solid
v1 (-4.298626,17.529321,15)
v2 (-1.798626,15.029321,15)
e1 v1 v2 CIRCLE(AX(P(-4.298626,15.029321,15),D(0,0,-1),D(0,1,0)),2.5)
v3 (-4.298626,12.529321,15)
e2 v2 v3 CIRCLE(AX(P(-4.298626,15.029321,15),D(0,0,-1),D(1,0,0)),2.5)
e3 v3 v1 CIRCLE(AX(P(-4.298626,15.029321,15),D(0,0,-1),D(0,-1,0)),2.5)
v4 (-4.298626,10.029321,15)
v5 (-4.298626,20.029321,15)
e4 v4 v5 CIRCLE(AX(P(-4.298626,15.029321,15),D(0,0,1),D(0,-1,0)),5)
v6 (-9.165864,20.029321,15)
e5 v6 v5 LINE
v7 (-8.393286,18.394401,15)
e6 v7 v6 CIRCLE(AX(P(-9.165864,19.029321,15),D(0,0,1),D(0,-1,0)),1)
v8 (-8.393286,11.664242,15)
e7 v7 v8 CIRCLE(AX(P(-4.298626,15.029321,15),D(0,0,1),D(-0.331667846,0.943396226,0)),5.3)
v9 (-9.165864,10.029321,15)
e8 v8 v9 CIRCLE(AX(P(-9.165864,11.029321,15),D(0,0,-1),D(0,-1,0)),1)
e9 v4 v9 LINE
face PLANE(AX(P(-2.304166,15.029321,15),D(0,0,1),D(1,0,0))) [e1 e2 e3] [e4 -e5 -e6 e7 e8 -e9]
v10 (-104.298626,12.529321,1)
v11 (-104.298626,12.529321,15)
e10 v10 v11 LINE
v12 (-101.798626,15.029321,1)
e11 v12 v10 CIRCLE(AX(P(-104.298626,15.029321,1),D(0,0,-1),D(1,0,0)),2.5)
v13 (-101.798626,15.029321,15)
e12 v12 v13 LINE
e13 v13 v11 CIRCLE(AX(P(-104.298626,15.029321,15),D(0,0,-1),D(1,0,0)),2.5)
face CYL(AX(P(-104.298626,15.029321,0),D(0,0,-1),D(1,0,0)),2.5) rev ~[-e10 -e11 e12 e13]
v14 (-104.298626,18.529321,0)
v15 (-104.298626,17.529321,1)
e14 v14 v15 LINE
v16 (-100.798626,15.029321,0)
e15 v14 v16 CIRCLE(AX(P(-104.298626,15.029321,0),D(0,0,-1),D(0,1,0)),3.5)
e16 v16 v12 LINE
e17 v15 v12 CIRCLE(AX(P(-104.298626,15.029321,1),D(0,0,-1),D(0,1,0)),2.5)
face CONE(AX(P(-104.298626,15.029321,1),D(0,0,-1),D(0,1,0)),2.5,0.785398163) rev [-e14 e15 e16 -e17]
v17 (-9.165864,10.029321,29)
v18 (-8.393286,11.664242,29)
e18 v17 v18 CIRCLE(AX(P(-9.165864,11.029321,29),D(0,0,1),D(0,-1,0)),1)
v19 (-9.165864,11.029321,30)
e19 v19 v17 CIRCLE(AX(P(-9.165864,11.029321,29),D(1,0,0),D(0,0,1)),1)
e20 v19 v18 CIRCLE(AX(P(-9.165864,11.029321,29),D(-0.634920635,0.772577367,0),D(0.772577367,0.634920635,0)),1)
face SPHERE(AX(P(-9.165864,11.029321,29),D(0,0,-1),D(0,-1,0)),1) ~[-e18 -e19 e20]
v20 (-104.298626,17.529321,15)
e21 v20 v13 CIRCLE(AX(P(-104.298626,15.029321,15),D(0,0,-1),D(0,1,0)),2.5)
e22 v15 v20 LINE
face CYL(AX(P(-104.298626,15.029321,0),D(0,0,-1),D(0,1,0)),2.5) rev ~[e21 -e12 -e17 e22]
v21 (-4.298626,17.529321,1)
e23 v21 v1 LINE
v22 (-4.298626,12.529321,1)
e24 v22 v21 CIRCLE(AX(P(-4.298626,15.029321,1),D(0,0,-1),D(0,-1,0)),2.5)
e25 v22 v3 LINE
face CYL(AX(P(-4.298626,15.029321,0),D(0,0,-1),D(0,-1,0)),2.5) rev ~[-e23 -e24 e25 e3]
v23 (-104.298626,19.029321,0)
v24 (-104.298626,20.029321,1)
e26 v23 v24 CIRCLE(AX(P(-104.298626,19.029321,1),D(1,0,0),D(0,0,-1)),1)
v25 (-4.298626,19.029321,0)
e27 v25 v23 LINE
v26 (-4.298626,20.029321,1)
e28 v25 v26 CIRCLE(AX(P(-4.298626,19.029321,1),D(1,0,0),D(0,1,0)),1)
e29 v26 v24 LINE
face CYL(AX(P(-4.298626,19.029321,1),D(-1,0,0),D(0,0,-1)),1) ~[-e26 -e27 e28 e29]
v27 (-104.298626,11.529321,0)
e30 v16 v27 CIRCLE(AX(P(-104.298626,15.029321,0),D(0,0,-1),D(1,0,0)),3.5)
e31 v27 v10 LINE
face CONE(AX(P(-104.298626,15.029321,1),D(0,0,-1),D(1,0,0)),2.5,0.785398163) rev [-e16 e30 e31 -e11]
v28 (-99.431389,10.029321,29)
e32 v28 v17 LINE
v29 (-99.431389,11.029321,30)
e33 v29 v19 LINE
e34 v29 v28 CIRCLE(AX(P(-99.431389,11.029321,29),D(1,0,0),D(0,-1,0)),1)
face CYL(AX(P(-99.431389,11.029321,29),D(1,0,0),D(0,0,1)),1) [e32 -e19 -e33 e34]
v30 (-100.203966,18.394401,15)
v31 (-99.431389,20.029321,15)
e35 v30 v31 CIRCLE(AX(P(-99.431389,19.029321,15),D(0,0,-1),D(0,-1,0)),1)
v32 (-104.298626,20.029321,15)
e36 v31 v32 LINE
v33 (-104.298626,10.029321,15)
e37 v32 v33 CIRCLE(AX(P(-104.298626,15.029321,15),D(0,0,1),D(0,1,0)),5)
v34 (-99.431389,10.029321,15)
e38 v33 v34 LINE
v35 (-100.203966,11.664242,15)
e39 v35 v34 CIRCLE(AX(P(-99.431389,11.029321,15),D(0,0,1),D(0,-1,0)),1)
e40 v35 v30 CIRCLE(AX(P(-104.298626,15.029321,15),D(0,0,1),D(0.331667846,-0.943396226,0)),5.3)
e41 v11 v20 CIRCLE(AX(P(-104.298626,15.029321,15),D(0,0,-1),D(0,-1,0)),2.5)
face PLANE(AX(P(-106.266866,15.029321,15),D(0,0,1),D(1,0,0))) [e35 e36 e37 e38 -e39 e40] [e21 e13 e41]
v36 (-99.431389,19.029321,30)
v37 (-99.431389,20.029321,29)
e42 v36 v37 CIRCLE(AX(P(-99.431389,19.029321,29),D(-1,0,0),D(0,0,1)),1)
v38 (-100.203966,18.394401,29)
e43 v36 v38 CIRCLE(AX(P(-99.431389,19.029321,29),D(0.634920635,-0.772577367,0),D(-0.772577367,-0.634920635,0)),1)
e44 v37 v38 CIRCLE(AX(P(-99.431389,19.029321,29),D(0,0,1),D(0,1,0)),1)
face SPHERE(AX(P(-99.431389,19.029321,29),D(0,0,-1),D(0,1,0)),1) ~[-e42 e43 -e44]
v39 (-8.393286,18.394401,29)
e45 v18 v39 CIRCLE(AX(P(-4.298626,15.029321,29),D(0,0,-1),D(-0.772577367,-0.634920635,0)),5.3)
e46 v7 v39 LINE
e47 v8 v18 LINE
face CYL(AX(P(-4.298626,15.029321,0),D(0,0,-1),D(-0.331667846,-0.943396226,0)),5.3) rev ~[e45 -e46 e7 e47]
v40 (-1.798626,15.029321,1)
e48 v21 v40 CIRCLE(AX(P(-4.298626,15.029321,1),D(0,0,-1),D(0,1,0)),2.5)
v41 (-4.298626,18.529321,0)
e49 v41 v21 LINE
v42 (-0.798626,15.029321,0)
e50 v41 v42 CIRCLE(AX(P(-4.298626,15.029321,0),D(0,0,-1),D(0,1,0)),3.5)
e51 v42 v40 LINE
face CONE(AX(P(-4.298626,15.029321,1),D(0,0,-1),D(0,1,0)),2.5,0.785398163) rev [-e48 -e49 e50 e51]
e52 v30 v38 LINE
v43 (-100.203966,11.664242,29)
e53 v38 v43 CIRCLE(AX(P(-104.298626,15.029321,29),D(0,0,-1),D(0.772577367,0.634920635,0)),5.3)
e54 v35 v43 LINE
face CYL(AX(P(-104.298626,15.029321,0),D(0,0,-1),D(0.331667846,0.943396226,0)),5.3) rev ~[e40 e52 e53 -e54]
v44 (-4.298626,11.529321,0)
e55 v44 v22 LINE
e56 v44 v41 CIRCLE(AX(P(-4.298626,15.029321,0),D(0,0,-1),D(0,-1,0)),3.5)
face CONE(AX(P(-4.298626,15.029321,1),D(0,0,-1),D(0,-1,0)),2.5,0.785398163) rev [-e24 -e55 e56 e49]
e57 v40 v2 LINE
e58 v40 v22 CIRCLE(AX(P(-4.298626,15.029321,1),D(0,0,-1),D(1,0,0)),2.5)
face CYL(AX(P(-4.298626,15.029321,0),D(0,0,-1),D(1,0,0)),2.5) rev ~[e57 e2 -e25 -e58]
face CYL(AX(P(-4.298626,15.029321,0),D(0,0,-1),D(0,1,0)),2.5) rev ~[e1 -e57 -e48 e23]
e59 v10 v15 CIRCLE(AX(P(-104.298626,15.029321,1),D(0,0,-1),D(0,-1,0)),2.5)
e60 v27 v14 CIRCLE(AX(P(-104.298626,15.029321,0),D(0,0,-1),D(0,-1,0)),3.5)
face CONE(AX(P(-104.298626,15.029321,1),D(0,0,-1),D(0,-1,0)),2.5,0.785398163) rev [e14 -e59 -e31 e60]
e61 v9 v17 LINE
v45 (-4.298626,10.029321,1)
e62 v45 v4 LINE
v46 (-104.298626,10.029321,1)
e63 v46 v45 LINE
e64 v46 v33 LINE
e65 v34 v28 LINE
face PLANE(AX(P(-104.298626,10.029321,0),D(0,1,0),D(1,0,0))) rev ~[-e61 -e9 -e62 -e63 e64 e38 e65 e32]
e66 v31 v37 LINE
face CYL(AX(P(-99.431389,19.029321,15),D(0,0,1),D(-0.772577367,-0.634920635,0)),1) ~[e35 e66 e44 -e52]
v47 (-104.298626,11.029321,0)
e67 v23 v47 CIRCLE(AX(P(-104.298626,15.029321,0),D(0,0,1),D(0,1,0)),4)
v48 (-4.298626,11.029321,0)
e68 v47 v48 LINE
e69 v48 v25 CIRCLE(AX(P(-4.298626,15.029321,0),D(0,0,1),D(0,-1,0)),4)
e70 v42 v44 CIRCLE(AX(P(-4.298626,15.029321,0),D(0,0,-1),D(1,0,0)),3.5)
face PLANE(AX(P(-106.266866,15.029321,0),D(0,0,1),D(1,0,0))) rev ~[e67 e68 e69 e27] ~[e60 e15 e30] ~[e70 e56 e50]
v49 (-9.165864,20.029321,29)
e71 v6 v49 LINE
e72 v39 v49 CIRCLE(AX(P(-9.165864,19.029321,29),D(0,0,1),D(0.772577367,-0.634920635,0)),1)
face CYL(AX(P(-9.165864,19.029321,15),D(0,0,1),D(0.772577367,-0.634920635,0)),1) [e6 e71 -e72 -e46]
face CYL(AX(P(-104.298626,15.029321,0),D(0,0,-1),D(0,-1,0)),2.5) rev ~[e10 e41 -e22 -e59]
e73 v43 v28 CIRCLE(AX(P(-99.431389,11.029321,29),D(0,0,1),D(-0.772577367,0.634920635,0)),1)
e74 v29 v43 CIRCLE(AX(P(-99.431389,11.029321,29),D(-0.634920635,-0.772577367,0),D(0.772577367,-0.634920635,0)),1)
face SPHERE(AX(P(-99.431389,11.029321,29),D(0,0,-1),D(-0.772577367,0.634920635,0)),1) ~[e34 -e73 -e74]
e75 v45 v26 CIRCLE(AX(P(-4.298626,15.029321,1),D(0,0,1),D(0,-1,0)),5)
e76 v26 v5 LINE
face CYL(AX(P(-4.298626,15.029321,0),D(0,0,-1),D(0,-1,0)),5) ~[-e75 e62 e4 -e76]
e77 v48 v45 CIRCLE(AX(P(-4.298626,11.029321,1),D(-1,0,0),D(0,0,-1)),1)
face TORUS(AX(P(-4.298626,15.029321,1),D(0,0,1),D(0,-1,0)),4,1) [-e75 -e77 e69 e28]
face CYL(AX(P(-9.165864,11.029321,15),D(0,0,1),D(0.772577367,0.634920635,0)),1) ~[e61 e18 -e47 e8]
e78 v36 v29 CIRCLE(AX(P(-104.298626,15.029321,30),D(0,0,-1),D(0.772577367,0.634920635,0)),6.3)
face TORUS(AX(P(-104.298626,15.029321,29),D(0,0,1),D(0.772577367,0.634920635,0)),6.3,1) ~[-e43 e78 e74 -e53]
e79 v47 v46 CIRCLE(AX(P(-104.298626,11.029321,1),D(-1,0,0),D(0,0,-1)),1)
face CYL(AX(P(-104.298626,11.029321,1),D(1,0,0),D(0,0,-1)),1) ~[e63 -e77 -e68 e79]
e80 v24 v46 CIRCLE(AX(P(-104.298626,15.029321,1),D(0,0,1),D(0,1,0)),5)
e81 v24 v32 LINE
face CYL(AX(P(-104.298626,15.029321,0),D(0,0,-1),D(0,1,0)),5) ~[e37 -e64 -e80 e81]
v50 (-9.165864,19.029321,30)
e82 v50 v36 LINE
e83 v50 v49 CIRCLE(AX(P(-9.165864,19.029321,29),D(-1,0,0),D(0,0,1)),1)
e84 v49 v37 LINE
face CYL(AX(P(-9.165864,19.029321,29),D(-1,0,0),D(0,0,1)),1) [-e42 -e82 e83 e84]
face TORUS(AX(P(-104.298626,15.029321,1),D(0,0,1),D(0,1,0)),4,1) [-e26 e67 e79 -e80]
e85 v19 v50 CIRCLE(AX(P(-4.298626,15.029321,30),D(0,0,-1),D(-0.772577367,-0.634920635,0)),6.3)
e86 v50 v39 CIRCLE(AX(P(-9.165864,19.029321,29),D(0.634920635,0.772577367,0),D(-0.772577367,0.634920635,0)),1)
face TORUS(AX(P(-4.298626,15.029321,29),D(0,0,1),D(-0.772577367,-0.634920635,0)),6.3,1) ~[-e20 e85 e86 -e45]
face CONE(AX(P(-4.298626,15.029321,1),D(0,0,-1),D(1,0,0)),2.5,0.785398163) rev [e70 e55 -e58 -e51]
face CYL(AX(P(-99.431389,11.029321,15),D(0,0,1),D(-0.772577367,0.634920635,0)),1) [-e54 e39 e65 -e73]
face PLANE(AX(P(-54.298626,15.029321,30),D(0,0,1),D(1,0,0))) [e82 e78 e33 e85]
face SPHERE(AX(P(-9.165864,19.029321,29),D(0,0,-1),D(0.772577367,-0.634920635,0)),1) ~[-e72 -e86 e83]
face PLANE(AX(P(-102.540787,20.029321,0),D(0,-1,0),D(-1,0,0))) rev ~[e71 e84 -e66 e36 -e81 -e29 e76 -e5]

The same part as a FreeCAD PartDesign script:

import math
import FreeCAD as App
import Part
import Sketcher

V = App.Vector


def edges_at(feature, points):
    """Names of the edges that pass closest to the given points."""
    edges = feature.Shape.Edges
    near = lambda p: min(range(len(edges)), key=lambda i: edges[i].distToShape(Part.Vertex(*p))[0])
    return sorted({f"Edge{near(p) + 1}" for p in points})

doc = App.newDocument("Part")
body = doc.addObject("PartDesign::Body", "Body")

# Sketch on XY plane
sketch1 = body.newObject("Sketcher::SketchObject", "Sketch")
sketch1.AttachmentSupport = (doc.getObject("XY_Plane"), [""])
sketch1.MapMode = "FlatFace"
sketch1.addGeometry(Part.LineSegment(V(-6.056466, 20.029321, 0), V(-102.540787, 20.029321, 0)), False)
sketch1.addGeometry(Part.ArcOfCircle(Part.Circle(V(-104.298626, 15.029321, 0), V(0, 0, 1), 5.3), math.radians(-70.629962), math.radians(70.629962)), False)
sketch1.addGeometry(Part.LineSegment(V(-102.540787, 10.029321, 0), V(-6.056466, 10.029321, 0)), False)
sketch1.addGeometry(Part.ArcOfCircle(Part.Circle(V(-4.298626, 15.029321, 0), V(0, 0, 1), 5.3), math.radians(109.370038), math.radians(250.629962)), False)
sketch1.addConstraint(Sketcher.Constraint("Coincident", 0, 2, 1, 2))
sketch1.addConstraint(Sketcher.Constraint("Coincident", 1, 1, 2, 1))
sketch1.addConstraint(Sketcher.Constraint("Coincident", 2, 2, 3, 2))
sketch1.addConstraint(Sketcher.Constraint("Coincident", 3, 1, 0, 1))
sketch1.addConstraint(Sketcher.Constraint("Horizontal", 0))
sketch1.addConstraint(Sketcher.Constraint("Horizontal", 2))
sketch1.addConstraint(Sketcher.Constraint("Equal", 1, 3))
sketch1.addConstraint(Sketcher.Constraint("Horizontal", 1, 3, 3, 3))
sketch1.addConstraint(Sketcher.Constraint("Vertical", 0, 2, 1, 1))
sketch1.addConstraint(Sketcher.Constraint("Radius", 1, 5.3))
sketch1.addConstraint(Sketcher.Constraint("DistanceX", 1, 3, 3, 3, 100.0))
sketch1.addConstraint(Sketcher.Constraint("DistanceY", 1, 3, 0, 2, 5.0))
sketch1.addConstraint(Sketcher.Constraint("DistanceY", -1, 1, 1, 3, 15.029321))
sketch1.addConstraint(Sketcher.Constraint("DistanceX", 1, 3, -1, 1, 104.298626))
pad1 = body.newObject("PartDesign::Pad", "Pad")
pad1.Profile = sketch1
pad1.Length = 30

# Sketch on XY plane
sketch2 = body.newObject("Sketcher::SketchObject", "Sketch001")
sketch2.AttachmentSupport = (doc.getObject("XY_Plane"), [""])
sketch2.MapMode = "FlatFace"
sketch2.addGeometry(Part.ArcOfCircle(Part.Circle(V(-104.298626, 15.029321, 0), V(0, 0, 1), 5), math.radians(90), math.radians(270)), False)
sketch2.addGeometry(Part.LineSegment(V(-104.298626, 10.029321, 0), V(-102.540787, 10.029321, 0)), False)
sketch2.addGeometry(Part.ArcOfCircle(Part.Circle(V(-104.298626, 15.029321, 0), V(0, 0, 1), 5.3), math.radians(-70.629962), math.radians(70.629962)), False)
sketch2.addGeometry(Part.LineSegment(V(-102.540787, 20.029321, 0), V(-104.298626, 20.029321, 0)), False)
sketch2.addGeometry(Part.ArcOfCircle(Part.Circle(V(-104.298626, 15.029321, 0), V(0, 0, 1), 2.5), math.radians(90), math.radians(270)), False)
sketch2.addGeometry(Part.ArcOfCircle(Part.Circle(V(-104.298626, 15.029321, 0), V(0, 0, 1), 2.5), math.radians(0), math.radians(90)), False)
sketch2.addGeometry(Part.ArcOfCircle(Part.Circle(V(-104.298626, 15.029321, 0), V(0, 0, 1), 2.5), math.radians(-90), math.radians(0)), False)
sketch2.addGeometry(Part.ArcOfCircle(Part.Circle(V(-4.298626, 15.029321, 0), V(0, 0, 1), 5), math.radians(-90), math.radians(90)), False)
sketch2.addGeometry(Part.LineSegment(V(-4.298626, 20.029321, 0), V(-6.056466, 20.029321, 0)), False)
sketch2.addGeometry(Part.ArcOfCircle(Part.Circle(V(-4.298626, 15.029321, 0), V(0, 0, 1), 5.3), math.radians(109.370038), math.radians(250.629962)), False)
sketch2.addGeometry(Part.LineSegment(V(-6.056466, 10.029321, 0), V(-4.298626, 10.029321, 0)), False)
sketch2.addGeometry(Part.ArcOfCircle(Part.Circle(V(-4.298626, 15.029321, 0), V(0, 0, 1), 2.5), math.radians(0), math.radians(90)), False)
sketch2.addGeometry(Part.ArcOfCircle(Part.Circle(V(-4.298626, 15.029321, 0), V(0, 0, 1), 2.5), math.radians(-90), math.radians(0)), False)
sketch2.addGeometry(Part.ArcOfCircle(Part.Circle(V(-4.298626, 15.029321, 0), V(0, 0, 1), 2.5), math.radians(90), math.radians(270)), False)
sketch2.addConstraint(Sketcher.Constraint("Tangent", 0, 2, 1, 1))
sketch2.addConstraint(Sketcher.Constraint("Coincident", 1, 2, 2, 1))
sketch2.addConstraint(Sketcher.Constraint("Coincident", 2, 2, 3, 1))
sketch2.addConstraint(Sketcher.Constraint("Tangent", 3, 2, 0, 1))
sketch2.addConstraint(Sketcher.Constraint("Tangent", 4, 1, 5, 2))
sketch2.addConstraint(Sketcher.Constraint("Tangent", 5, 1, 6, 2))
sketch2.addConstraint(Sketcher.Constraint("Tangent", 6, 1, 4, 2))
sketch2.addConstraint(Sketcher.Constraint("Tangent", 7, 2, 8, 1))
sketch2.addConstraint(Sketcher.Constraint("Coincident", 8, 2, 9, 1))
sketch2.addConstraint(Sketcher.Constraint("Coincident", 9, 2, 10, 1))
sketch2.addConstraint(Sketcher.Constraint("Tangent", 10, 2, 7, 1))
sketch2.addConstraint(Sketcher.Constraint("Tangent", 11, 1, 12, 2))
sketch2.addConstraint(Sketcher.Constraint("Tangent", 12, 1, 13, 2))
sketch2.addConstraint(Sketcher.Constraint("Tangent", 13, 1, 11, 2))
sketch2.addConstraint(Sketcher.Constraint("Horizontal", 1))
sketch2.addConstraint(Sketcher.Constraint("Horizontal", 3))
sketch2.addConstraint(Sketcher.Constraint("Horizontal", 8))
sketch2.addConstraint(Sketcher.Constraint("Horizontal", 10))
sketch2.addConstraint(Sketcher.Constraint("Coincident", 2, 3, 0, 3))
sketch2.addConstraint(Sketcher.Constraint("Coincident", 4, 3, 0, 3))
sketch2.addConstraint(Sketcher.Constraint("Coincident", 9, 3, 7, 3))
sketch2.addConstraint(Sketcher.Constraint("Coincident", 11, 3, 7, 3))
sketch2.addConstraint(Sketcher.Constraint("Equal", 0, 7))
sketch2.addConstraint(Sketcher.Constraint("Equal", 2, 9))
sketch2.addConstraint(Sketcher.Constraint("Equal", 6, 11))
sketch2.addConstraint(Sketcher.Constraint("Horizontal", 6, 3, 7, 3))
sketch2.addConstraint(Sketcher.Constraint("Horizontal", 13, 3, 5, 1))
sketch2.addConstraint(Sketcher.Constraint("Horizontal", 5, 1, 11, 1))
sketch2.addConstraint(Sketcher.Constraint("Vertical", 3, 2, 4, 1))
sketch2.addConstraint(Sketcher.Constraint("Vertical", 4, 1, 6, 1))
sketch2.addConstraint(Sketcher.Constraint("Vertical", 10, 2, 12, 1))
sketch2.addConstraint(Sketcher.Constraint("Vertical", 12, 1, 13, 1))
sketch2.addConstraint(Sketcher.Constraint("Radius", 0, 5.0))
sketch2.addConstraint(Sketcher.Constraint("Radius", 2, 5.3))
sketch2.addConstraint(Sketcher.Constraint("Radius", 4, 2.5))
sketch2.addConstraint(Sketcher.Constraint("DistanceX", 0, 3, 7, 3, 100.0))
sketch2.addConstraint(Sketcher.Constraint("DistanceY", -1, 1, 0, 3, 15.029321))
sketch2.addConstraint(Sketcher.Constraint("DistanceX", 0, 3, -1, 1, 104.298626))
pad2 = body.newObject("PartDesign::Pad", "Pad001")
pad2.Profile = sketch2
pad2.Length = 15
doc.recompute()

fillet = body.newObject("PartDesign::Fillet", "Fillet")
fillet.Base = (pad2, edges_at(pad2, [
    (-102.541, 20.029, 22.5),
    (-102.541, 10.029, 22.5),
    (-6.056, 20.029, 22.5),
    (-6.056, 10.029, 22.5),
]))
fillet.Radius = 1
doc.recompute()

fillet2 = body.newObject("PartDesign::Fillet", "Fillet001")
fillet2.Base = (fillet, edges_at(fillet, [(-54.299, 20.029, 30), (-54.299, 10.029, 0)]))
fillet2.Radius = 1
doc.recompute()

chamfer = body.newObject("PartDesign::Chamfer", "Chamfer")
chamfer.Base = (fillet2, edges_at(fillet2, [(-102.531, 13.262, 0), (-2.531, 16.797, 0)]))
chamfer.Size = 1

doc.recompute()
